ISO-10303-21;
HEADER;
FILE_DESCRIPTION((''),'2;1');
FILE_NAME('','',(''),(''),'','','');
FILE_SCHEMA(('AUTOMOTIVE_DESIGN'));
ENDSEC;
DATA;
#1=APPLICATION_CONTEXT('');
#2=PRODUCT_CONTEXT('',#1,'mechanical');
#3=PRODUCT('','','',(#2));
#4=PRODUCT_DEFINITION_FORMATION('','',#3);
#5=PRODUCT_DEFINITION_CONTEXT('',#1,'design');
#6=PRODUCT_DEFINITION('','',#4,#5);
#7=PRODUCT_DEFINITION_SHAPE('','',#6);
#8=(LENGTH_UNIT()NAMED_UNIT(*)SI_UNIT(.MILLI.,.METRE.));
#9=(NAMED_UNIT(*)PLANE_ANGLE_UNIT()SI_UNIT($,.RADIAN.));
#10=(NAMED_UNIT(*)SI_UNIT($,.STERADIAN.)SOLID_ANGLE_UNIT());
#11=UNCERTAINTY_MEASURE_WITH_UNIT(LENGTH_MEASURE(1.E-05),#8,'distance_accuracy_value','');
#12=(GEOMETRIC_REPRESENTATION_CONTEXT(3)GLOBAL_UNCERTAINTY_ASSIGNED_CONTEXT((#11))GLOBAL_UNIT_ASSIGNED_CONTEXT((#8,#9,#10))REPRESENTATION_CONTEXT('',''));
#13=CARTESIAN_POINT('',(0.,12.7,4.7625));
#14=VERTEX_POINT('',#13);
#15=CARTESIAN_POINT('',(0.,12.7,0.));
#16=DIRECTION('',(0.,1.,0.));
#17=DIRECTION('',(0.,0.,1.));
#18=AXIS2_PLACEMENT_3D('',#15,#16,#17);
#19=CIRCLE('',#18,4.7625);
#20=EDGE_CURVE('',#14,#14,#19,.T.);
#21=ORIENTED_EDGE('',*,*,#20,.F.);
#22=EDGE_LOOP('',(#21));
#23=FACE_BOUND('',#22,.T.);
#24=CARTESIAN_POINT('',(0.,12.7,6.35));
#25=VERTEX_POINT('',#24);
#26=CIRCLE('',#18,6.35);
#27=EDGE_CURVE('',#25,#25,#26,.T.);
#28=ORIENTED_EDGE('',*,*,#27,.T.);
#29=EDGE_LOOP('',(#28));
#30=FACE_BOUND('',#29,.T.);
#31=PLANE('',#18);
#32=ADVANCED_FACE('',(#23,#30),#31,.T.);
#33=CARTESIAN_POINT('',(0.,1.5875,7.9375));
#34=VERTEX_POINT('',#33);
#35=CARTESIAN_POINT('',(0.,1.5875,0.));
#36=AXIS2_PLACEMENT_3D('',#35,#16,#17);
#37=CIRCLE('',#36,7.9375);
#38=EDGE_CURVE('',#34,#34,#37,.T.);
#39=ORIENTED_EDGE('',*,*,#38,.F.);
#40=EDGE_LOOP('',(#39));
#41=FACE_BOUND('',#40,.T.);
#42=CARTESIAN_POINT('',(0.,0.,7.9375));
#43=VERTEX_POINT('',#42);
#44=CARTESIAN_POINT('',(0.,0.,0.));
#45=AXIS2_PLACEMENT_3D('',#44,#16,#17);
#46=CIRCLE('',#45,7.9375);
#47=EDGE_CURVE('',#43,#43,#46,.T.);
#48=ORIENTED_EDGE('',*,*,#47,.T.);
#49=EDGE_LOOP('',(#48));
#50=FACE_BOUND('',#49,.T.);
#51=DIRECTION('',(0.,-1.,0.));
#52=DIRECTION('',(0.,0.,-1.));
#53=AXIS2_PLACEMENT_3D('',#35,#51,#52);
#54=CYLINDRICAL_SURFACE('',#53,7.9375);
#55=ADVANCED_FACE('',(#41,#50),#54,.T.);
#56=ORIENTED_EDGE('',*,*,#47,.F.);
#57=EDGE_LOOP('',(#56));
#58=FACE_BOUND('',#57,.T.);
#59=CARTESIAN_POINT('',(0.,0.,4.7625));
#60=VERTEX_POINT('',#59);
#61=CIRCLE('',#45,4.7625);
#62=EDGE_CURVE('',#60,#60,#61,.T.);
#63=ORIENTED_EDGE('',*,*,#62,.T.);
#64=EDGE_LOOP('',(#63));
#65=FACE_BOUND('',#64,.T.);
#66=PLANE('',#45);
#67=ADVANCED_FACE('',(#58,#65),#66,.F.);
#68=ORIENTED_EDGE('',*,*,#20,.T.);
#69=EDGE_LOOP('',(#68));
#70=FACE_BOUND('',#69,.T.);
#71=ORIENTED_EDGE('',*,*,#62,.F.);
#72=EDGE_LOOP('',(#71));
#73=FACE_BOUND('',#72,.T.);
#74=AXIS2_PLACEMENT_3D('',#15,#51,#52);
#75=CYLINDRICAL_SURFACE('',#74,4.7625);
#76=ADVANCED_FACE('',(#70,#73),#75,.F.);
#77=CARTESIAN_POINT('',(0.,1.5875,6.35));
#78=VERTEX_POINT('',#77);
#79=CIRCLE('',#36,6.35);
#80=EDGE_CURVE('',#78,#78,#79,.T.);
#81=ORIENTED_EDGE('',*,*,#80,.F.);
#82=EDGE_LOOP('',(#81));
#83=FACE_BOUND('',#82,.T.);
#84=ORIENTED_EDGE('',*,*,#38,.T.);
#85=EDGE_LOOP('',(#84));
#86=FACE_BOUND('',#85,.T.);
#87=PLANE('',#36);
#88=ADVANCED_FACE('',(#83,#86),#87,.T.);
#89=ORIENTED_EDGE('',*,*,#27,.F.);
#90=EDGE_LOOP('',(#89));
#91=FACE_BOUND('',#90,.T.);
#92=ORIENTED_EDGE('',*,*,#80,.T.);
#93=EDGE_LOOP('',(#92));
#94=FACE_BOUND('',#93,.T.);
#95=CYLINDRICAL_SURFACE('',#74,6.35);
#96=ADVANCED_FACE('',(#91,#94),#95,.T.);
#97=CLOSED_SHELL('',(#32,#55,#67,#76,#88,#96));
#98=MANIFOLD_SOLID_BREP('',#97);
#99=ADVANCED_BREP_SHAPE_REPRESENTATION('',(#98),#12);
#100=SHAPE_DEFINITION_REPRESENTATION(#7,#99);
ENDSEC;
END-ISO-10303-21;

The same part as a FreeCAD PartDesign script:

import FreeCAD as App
import Part
import Sketcher
from FreeCAD import Vector
Q = App.Units.Quantity

doc = App.newDocument("Part")
body = doc.addObject("PartDesign::Body", "Body")

# Sketch on XZ plane
sketch1 = body.newObject("Sketcher::SketchObject", "Sketch")
sketch1.AttachmentSupport = (doc.getObject("XZ_Plane"), [""])
sketch1.MapMode = "FlatFace"
sketch1.addGeometry(Part.Circle(Vector(0, 0, 0), Vector(0, 0, 1), 6.3), False)
sketch1.addGeometry(Part.Circle(Vector(0, 0, 0), Vector(0, 0, 1), 4.8), False)
sketch1.addConstraint(Sketcher.Constraint("Coincident", 0, 3, -1, 1))
sketch1.addConstraint(Sketcher.Constraint("Coincident", 1, 3, -1, 1))
sketch1.addConstraint(Sketcher.Constraint("Diameter", 0, Q("0.5 in")))
sketch1.addConstraint(Sketcher.Constraint("Diameter", 1, Q("0.375 in")))
pad1 = body.newObject("PartDesign::Pad", "Pad")
pad1.Profile = sketch1
pad1.Length = Q("0.5 in")
pad1.Reversed = True

# Sketch on XZ plane
sketch2 = body.newObject("Sketcher::SketchObject", "Sketch001")
sketch2.AttachmentSupport = (doc.getObject("XZ_Plane"), [""])
sketch2.MapMode = "FlatFace"
sketch2.addGeometry(Part.Circle(Vector(0, 0, 0), Vector(0, 0, 1), 8), False)
sketch2.addGeometry(Part.Circle(Vector(0, 0, 0), Vector(0, 0, 1), 6), False)
sketch2.addConstraint(Sketcher.Constraint("Coincident", 0, 3, -1, 1))
sketch2.addConstraint(Sketcher.Constraint("Coincident", 1, 3, -1, 1))
sketch2.addConstraint(Sketcher.Constraint("Diameter", 1, Q("0.5 in")))
sketch2.addConstraint(Sketcher.Constraint("Diameter", 0, Q("0.625 in")))
pad2 = body.newObject("PartDesign::Pad", "Pad001")
pad2.Profile = sketch2
pad2.Length = Q("0.0625 in")
pad2.Reversed = True

doc.recompute()
